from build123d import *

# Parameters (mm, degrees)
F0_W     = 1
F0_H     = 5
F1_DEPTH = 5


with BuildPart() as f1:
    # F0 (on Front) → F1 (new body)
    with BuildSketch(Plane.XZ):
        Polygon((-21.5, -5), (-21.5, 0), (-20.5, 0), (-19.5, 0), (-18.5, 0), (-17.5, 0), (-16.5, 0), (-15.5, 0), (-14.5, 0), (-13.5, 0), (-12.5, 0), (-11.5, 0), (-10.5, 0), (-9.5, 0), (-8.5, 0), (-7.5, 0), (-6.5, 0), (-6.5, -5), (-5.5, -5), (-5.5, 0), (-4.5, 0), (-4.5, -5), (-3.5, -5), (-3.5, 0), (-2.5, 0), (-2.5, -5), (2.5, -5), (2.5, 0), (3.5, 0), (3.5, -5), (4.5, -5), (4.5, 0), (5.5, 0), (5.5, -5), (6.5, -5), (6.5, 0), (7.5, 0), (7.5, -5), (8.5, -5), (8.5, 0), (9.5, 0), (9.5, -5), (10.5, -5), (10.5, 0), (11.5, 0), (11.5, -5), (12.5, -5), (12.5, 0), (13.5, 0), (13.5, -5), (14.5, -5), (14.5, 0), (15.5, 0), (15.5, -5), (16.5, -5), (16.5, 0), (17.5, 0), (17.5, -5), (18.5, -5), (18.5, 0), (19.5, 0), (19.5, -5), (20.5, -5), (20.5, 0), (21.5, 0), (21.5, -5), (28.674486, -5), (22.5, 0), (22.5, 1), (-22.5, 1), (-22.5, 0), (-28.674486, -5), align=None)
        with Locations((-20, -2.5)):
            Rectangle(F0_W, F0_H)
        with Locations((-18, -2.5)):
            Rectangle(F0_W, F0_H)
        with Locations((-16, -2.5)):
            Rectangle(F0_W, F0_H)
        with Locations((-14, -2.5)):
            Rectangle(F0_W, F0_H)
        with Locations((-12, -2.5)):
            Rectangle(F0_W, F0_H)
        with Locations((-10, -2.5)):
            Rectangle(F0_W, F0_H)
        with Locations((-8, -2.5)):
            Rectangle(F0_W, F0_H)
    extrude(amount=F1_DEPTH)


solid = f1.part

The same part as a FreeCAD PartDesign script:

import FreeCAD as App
import Part
import Sketcher

V = App.Vector
Q = App.Units.Quantity


def add_polygon(sketch, points):
    """Adds a closed chain of lines whose ends are joined by coincident constraints."""
    first, n = sketch.GeometryCount, len(points)
    for a, b in zip(points, points[1:] + points[:1]):
        sketch.addGeometry(Part.LineSegment(App.Vector(*a, 0), App.Vector(*b, 0)), False)
    for i in range(n):
        sketch.addConstraint(Sketcher.Constraint("Coincident", first + i, 2, first + (i + 1) % n, 1))

doc = App.newDocument("Part")
body = doc.addObject("PartDesign::Body", "Body")

# Sketch on XZ plane
sketch1 = body.newObject("Sketcher::SketchObject", "Sketch")
sketch1.AttachmentSupport = (doc.getObject("XZ_Plane"), [""])
sketch1.MapMode = "FlatFace"
add_polygon(sketch1, [(-21.5, -5), (-21.5, 0), (-20.5, 0), (-20.5, -5), (-19.5, -5), (-19.5, 0), (-18.5, 0), (-18.5, -5), (-17.5, -5), (-17.5, 0), (-16.5, 0), (-16.5, -5), (-15.5, -5), (-15.5, 0), (-14.5, 0), (-14.5, -5), (-13.5, -5), (-13.5, 0), (-12.5, 0), (-12.5, -5), (-11.5, -5), (-11.5, 0), (-10.5, 0), (-10.5, -5), (-9.5, -5), (-9.5, 0), (-8.5, 0), (-8.5, -5), (-7.5, -5), (-7.5, 0), (-6.5, 0), (-6.5, -5), (-5.5, -5), (-5.5, 0), (-4.5, 0), (-4.5, -5), (-3.5, -5), (-3.5, 0), (-2.5, 0), (-2.5, -5), (2.5, -5), (2.5, 0), (3.5, 0), (3.5, -5), (4.5, -5), (4.5, 0), (5.5, 0), (5.5, -5), (6.5, -5), (6.5, 0), (7.5, 0), (7.5, -5), (8.5, -5), (8.5, 0), (9.5, 0), (9.5, -5), (10.5, -5), (10.5, 0), (11.5, 0), (11.5, -5), (12.5, -5), (12.5, 0), (13.5, 0), (13.5, -5), (14.5, -5), (14.5, 0), (15.5, 0), (15.5, -5), (16.5, -5), (16.5, 0), (17.5, 0), (17.5, -5), (18.5, -5), (18.5, 0), (19.5, 0), (19.5, -5), (20.5, -5), (20.5, 0), (21.5, 0), (21.5, -5), (28.7, -5), (22.5, 0), (22.5, 1), (-22.5, 1), (-22.5, 0), (-28.7, -5)])  # lines 0-85
sketch1.addConstraint(Sketcher.Constraint("Vertical", 0))
sketch1.addConstraint(Sketcher.Constraint("Horizontal", 1))
sketch1.addConstraint(Sketcher.Constraint("Vertical", 2))
sketch1.addConstraint(Sketcher.Constraint("Horizontal", 3))
sketch1.addConstraint(Sketcher.Constraint("Vertical", 4))
sketch1.addConstraint(Sketcher.Constraint("Horizontal", 5))
sketch1.addConstraint(Sketcher.Constraint("Vertical", 6))
sketch1.addConstraint(Sketcher.Constraint("Horizontal", 7))
sketch1.addConstraint(Sketcher.Constraint("Vertical", 8))
sketch1.addConstraint(Sketcher.Constraint("Horizontal", 9))
sketch1.addConstraint(Sketcher.Constraint("Vertical", 10))
sketch1.addConstraint(Sketcher.Constraint("Horizontal", 11))
sketch1.addConstraint(Sketcher.Constraint("Vertical", 12))
sketch1.addConstraint(Sketcher.Constraint("Horizontal", 13))
sketch1.addConstraint(Sketcher.Constraint("Vertical", 14))
sketch1.addConstraint(Sketcher.Constraint("Horizontal", 15))
sketch1.addConstraint(Sketcher.Constraint("Vertical", 16))
sketch1.addConstraint(Sketcher.Constraint("Horizontal", 17))
sketch1.addConstraint(Sketcher.Constraint("Vertical", 18))
sketch1.addConstraint(Sketcher.Constraint("Horizontal", 19))
sketch1.addConstraint(Sketcher.Constraint("Vertical", 20))
sketch1.addConstraint(Sketcher.Constraint("Horizontal", 21))
sketch1.addConstraint(Sketcher.Constraint("Vertical", 22))
sketch1.addConstraint(Sketcher.Constraint("Horizontal", 23))
sketch1.addConstraint(Sketcher.Constraint("Vertical", 24))
sketch1.addConstraint(Sketcher.Constraint("Horizontal", 25))
sketch1.addConstraint(Sketcher.Constraint("Vertical", 26))
sketch1.addConstraint(Sketcher.Constraint("Horizontal", 27))
sketch1.addConstraint(Sketcher.Constraint("Vertical", 28))
sketch1.addConstraint(Sketcher.Constraint("Horizontal", 29))
sketch1.addConstraint(Sketcher.Constraint("Vertical", 30))
sketch1.addConstraint(Sketcher.Constraint("Horizontal", 31))
sketch1.addConstraint(Sketcher.Constraint("Vertical", 32))
sketch1.addConstraint(Sketcher.Constraint("Horizontal", 33))
sketch1.addConstraint(Sketcher.Constraint("Vertical", 34))
sketch1.addConstraint(Sketcher.Constraint("Horizontal", 35))
sketch1.addConstraint(Sketcher.Constraint("Vertical", 36))
sketch1.addConstraint(Sketcher.Constraint("Horizontal", 37))
sketch1.addConstraint(Sketcher.Constraint("Vertical", 38))
sketch1.addConstraint(Sketcher.Constraint("Horizontal", 39))
sketch1.addConstraint(Sketcher.Constraint("Vertical", 40))
sketch1.addConstraint(Sketcher.Constraint("Horizontal", 41))
sketch1.addConstraint(Sketcher.Constraint("Vertical", 42))
sketch1.addConstraint(Sketcher.Constraint("Horizontal", 43))
sketch1.addConstraint(Sketcher.Constraint("Vertical", 44))
sketch1.addConstraint(Sketcher.Constraint("Horizontal", 45))
sketch1.addConstraint(Sketcher.Constraint("Vertical", 46))
sketch1.addConstraint(Sketcher.Constraint("Horizontal", 47))
sketch1.addConstraint(Sketcher.Constraint("Vertical", 48))
sketch1.addConstraint(Sketcher.Constraint("Horizontal", 49))
sketch1.addConstraint(Sketcher.Constraint("Vertical", 50))
sketch1.addConstraint(Sketcher.Constraint("Horizontal", 51))
sketch1.addConstraint(Sketcher.Constraint("Vertical", 52))
sketch1.addConstraint(Sketcher.Constraint("Horizontal", 53))
sketch1.addConstraint(Sketcher.Constraint("Vertical", 54))
sketch1.addConstraint(Sketcher.Constraint("Horizontal", 55))
sketch1.addConstraint(Sketcher.Constraint("Vertical", 56))
sketch1.addConstraint(Sketcher.Constraint("Horizontal", 57))
sketch1.addConstraint(Sketcher.Constraint("Vertical", 58))
sketch1.addConstraint(Sketcher.Constraint("Horizontal", 59))
sketch1.addConstraint(Sketcher.Constraint("Vertical", 60))
sketch1.addConstraint(Sketcher.Constraint("Horizontal", 61))
sketch1.addConstraint(Sketcher.Constraint("Vertical", 62))
sketch1.addConstraint(Sketcher.Constraint("Horizontal", 63))
sketch1.addConstraint(Sketcher.Constraint("Vertical", 64))
sketch1.addConstraint(Sketcher.Constraint("Horizontal", 65))
sketch1.addConstraint(Sketcher.Constraint("Vertical", 66))
sketch1.addConstraint(Sketcher.Constraint("Horizontal", 67))
sketch1.addConstraint(Sketcher.Constraint("Vertical", 68))
sketch1.addConstraint(Sketcher.Constraint("Horizontal", 69))
sketch1.addConstraint(Sketcher.Constraint("Vertical", 70))
sketch1.addConstraint(Sketcher.Constraint("Horizontal", 71))
sketch1.addConstraint(Sketcher.Constraint("Vertical", 72))
sketch1.addConstraint(Sketcher.Constraint("Horizontal", 73))
sketch1.addConstraint(Sketcher.Constraint("Vertical", 74))
sketch1.addConstraint(Sketcher.Constraint("Horizontal", 75))
sketch1.addConstraint(Sketcher.Constraint("Vertical", 76))
sketch1.addConstraint(Sketcher.Constraint("Horizontal", 77))
sketch1.addConstraint(Sketcher.Constraint("Vertical", 78))
sketch1.addConstraint(Sketcher.Constraint("Horizontal", 79))
sketch1.addConstraint(Sketcher.Constraint("Vertical", 81))
sketch1.addConstraint(Sketcher.Constraint("Horizontal", 82))
sketch1.addConstraint(Sketcher.Constraint("Vertical", 83))
sketch1.addConstraint(Sketcher.Constraint("Horizontal", 85))
sketch1.addConstraint(Sketcher.Constraint("Symmetric", 37, 2, 40, 2, -1, 1))
sketch1.addConstraint(Sketcher.Constraint("Symmetric", 33, 2, 44, 2, -1, 1))
sketch1.addConstraint(Sketcher.Constraint("Symmetric", 29, 2, 48, 2, -1, 1))
sketch1.addConstraint(Sketcher.Constraint("Symmetric", 25, 2, 52, 2, -1, 1))
sketch1.addConstraint(Sketcher.Constraint("Symmetric", 21, 2, 56, 2, -1, 1))
sketch1.addConstraint(Sketcher.Constraint("Symmetric", 17, 2, 60, 2, -1, 1))
sketch1.addConstraint(Sketcher.Constraint("Symmetric", 13, 2, 64, 2, -1, 1))
sketch1.addConstraint(Sketcher.Constraint("Symmetric", 9, 2, 68, 2, -1, 1))
sketch1.addConstraint(Sketcher.Constraint("Symmetric", 5, 2, 72, 2, -1, 1))
sketch1.addConstraint(Sketcher.Constraint("Symmetric", 1, 2, 76, 2, -1, 1))
sketch1.addConstraint(Sketcher.Constraint("Symmetric", 80, 2, 83, 2, -1, 1))
sketch1.addConstraint(Sketcher.Constraint("Symmetric", 36, 2, 41, 2, -2))
sketch1.addConstraint(Sketcher.Constraint("Symmetric", 32, 2, 45, 2, -2))
sketch1.addConstraint(Sketcher.Constraint("Symmetric", 28, 2, 49, 2, -2))
sketch1.addConstraint(Sketcher.Constraint("Symmetric", 24, 2, 53, 2, -2))
sketch1.addConstraint(Sketcher.Constraint("Symmetric", 20, 2, 57, 2, -2))
sketch1.addConstraint(Sketcher.Constraint("Symmetric", 16, 2, 61, 2, -2))
sketch1.addConstraint(Sketcher.Constraint("Symmetric", 12, 2, 65, 2, -2))
sketch1.addConstraint(Sketcher.Constraint("Symmetric", 8, 2, 69, 2, -2))
sketch1.addConstraint(Sketcher.Constraint("Symmetric", 4, 2, 73, 2, -2))
sketch1.addConstraint(Sketcher.Constraint("Symmetric", 0, 2, 77, 2, -2))
sketch1.addConstraint(Sketcher.Constraint("Symmetric", 79, 2, 84, 2, -2))
sketch1.addConstraint(Sketcher.Constraint("PointOnObject", 80, 2, -1))
sketch1.addConstraint(Sketcher.Constraint("Horizontal", 3, 2, 6, 2))
sketch1.addConstraint(Sketcher.Constraint("Horizontal", 7, 2, 10, 2))
sketch1.addConstraint(Sketcher.Constraint("Horizontal", 11, 2, 14, 2))
sketch1.addConstraint(Sketcher.Constraint("Horizontal", 15, 2, 18, 2))
sketch1.addConstraint(Sketcher.Constraint("Horizontal", 19, 2, 22, 2))
sketch1.addConstraint(Sketcher.Constraint("Horizontal", 23, 2, 26, 2))
sketch1.addConstraint(Sketcher.Constraint("Horizontal", 27, 2, 30, 2))
sketch1.addConstraint(Sketcher.Constraint("Horizontal", 31, 2, 34, 2))
sketch1.addConstraint(Sketcher.Constraint("Horizontal", 35, 2, 38, 2))
sketch1.addConstraint(Sketcher.Constraint("Horizontal", 39, 2, 42, 2))
sketch1.addConstraint(Sketcher.Constraint("Horizontal", 43, 2, 46, 2))
sketch1.addConstraint(Sketcher.Constraint("Horizontal", 47, 2, 50, 2))
sketch1.addConstraint(Sketcher.Constraint("Horizontal", 51, 2, 54, 2))
sketch1.addConstraint(Sketcher.Constraint("Horizontal", 55, 2, 58, 2))
sketch1.addConstraint(Sketcher.Constraint("Horizontal", 59, 2, 62, 2))
sketch1.addConstraint(Sketcher.Constraint("Horizontal", 63, 2, 66, 2))
sketch1.addConstraint(Sketcher.Constraint("Horizontal", 67, 2, 70, 2))
sketch1.addConstraint(Sketcher.Constraint("Horizontal", 71, 2, 74, 2))
sketch1.addConstraint(Sketcher.Constraint("Horizontal", 75, 2, 78, 2))
sketch1.addConstraint(Sketcher.Constraint("Equal", 1, 3))
sketch1.addConstraint(Sketcher.Constraint("Equal", 3, 5))
sketch1.addConstraint(Sketcher.Constraint("Equal", 5, 7))
sketch1.addConstraint(Sketcher.Constraint("Equal", 7, 9))
sketch1.addConstraint(Sketcher.Constraint("Equal", 9, 11))
sketch1.addConstraint(Sketcher.Constraint("Equal", 11, 13))
sketch1.addConstraint(Sketcher.Constraint("Equal", 13, 15))
sketch1.addConstraint(Sketcher.Constraint("Equal", 15, 17))
sketch1.addConstraint(Sketcher.Constraint("Equal", 17, 19))
sketch1.addConstraint(Sketcher.Constraint("Equal", 19, 21))
sketch1.addConstraint(Sketcher.Constraint("Equal", 21, 23))
sketch1.addConstraint(Sketcher.Constraint("Equal", 23, 25))
sketch1.addConstraint(Sketcher.Constraint("Equal", 25, 27))
sketch1.addConstraint(Sketcher.Constraint("Equal", 27, 29))
sketch1.addConstraint(Sketcher.Constraint("Equal", 29, 31))
sketch1.addConstraint(Sketcher.Constraint("Equal", 31, 33))
sketch1.addConstraint(Sketcher.Constraint("Equal", 33, 35))
sketch1.addConstraint(Sketcher.Constraint("Equal", 35, 37))
sketch1.addConstraint(Sketcher.Constraint("Equal", 39, 0))
sketch1.addConstraint(Sketcher.Constraint("Equal", 77, 81))
sketch1.addConstraint(Sketcher.Constraint("DistanceX", 1, 1, 1, 2, Q("1 mm")))
sketch1.addConstraint(Sketcher.Constraint("DistanceX", 39, 1, 39, 2, Q("5 mm")))
sketch1.addConstraint(Sketcher.Constraint("DistanceX", 82, 2, 82, 1, Q("45 mm")))
sketch1.addConstraint(Sketcher.Constraint("Angle", 80, Q("141.000001 deg")))
pad1 = body.newObject("PartDesign::Pad", "Pad")
pad1.Profile = sketch1
pad1.Length = 5

doc.recompute()
